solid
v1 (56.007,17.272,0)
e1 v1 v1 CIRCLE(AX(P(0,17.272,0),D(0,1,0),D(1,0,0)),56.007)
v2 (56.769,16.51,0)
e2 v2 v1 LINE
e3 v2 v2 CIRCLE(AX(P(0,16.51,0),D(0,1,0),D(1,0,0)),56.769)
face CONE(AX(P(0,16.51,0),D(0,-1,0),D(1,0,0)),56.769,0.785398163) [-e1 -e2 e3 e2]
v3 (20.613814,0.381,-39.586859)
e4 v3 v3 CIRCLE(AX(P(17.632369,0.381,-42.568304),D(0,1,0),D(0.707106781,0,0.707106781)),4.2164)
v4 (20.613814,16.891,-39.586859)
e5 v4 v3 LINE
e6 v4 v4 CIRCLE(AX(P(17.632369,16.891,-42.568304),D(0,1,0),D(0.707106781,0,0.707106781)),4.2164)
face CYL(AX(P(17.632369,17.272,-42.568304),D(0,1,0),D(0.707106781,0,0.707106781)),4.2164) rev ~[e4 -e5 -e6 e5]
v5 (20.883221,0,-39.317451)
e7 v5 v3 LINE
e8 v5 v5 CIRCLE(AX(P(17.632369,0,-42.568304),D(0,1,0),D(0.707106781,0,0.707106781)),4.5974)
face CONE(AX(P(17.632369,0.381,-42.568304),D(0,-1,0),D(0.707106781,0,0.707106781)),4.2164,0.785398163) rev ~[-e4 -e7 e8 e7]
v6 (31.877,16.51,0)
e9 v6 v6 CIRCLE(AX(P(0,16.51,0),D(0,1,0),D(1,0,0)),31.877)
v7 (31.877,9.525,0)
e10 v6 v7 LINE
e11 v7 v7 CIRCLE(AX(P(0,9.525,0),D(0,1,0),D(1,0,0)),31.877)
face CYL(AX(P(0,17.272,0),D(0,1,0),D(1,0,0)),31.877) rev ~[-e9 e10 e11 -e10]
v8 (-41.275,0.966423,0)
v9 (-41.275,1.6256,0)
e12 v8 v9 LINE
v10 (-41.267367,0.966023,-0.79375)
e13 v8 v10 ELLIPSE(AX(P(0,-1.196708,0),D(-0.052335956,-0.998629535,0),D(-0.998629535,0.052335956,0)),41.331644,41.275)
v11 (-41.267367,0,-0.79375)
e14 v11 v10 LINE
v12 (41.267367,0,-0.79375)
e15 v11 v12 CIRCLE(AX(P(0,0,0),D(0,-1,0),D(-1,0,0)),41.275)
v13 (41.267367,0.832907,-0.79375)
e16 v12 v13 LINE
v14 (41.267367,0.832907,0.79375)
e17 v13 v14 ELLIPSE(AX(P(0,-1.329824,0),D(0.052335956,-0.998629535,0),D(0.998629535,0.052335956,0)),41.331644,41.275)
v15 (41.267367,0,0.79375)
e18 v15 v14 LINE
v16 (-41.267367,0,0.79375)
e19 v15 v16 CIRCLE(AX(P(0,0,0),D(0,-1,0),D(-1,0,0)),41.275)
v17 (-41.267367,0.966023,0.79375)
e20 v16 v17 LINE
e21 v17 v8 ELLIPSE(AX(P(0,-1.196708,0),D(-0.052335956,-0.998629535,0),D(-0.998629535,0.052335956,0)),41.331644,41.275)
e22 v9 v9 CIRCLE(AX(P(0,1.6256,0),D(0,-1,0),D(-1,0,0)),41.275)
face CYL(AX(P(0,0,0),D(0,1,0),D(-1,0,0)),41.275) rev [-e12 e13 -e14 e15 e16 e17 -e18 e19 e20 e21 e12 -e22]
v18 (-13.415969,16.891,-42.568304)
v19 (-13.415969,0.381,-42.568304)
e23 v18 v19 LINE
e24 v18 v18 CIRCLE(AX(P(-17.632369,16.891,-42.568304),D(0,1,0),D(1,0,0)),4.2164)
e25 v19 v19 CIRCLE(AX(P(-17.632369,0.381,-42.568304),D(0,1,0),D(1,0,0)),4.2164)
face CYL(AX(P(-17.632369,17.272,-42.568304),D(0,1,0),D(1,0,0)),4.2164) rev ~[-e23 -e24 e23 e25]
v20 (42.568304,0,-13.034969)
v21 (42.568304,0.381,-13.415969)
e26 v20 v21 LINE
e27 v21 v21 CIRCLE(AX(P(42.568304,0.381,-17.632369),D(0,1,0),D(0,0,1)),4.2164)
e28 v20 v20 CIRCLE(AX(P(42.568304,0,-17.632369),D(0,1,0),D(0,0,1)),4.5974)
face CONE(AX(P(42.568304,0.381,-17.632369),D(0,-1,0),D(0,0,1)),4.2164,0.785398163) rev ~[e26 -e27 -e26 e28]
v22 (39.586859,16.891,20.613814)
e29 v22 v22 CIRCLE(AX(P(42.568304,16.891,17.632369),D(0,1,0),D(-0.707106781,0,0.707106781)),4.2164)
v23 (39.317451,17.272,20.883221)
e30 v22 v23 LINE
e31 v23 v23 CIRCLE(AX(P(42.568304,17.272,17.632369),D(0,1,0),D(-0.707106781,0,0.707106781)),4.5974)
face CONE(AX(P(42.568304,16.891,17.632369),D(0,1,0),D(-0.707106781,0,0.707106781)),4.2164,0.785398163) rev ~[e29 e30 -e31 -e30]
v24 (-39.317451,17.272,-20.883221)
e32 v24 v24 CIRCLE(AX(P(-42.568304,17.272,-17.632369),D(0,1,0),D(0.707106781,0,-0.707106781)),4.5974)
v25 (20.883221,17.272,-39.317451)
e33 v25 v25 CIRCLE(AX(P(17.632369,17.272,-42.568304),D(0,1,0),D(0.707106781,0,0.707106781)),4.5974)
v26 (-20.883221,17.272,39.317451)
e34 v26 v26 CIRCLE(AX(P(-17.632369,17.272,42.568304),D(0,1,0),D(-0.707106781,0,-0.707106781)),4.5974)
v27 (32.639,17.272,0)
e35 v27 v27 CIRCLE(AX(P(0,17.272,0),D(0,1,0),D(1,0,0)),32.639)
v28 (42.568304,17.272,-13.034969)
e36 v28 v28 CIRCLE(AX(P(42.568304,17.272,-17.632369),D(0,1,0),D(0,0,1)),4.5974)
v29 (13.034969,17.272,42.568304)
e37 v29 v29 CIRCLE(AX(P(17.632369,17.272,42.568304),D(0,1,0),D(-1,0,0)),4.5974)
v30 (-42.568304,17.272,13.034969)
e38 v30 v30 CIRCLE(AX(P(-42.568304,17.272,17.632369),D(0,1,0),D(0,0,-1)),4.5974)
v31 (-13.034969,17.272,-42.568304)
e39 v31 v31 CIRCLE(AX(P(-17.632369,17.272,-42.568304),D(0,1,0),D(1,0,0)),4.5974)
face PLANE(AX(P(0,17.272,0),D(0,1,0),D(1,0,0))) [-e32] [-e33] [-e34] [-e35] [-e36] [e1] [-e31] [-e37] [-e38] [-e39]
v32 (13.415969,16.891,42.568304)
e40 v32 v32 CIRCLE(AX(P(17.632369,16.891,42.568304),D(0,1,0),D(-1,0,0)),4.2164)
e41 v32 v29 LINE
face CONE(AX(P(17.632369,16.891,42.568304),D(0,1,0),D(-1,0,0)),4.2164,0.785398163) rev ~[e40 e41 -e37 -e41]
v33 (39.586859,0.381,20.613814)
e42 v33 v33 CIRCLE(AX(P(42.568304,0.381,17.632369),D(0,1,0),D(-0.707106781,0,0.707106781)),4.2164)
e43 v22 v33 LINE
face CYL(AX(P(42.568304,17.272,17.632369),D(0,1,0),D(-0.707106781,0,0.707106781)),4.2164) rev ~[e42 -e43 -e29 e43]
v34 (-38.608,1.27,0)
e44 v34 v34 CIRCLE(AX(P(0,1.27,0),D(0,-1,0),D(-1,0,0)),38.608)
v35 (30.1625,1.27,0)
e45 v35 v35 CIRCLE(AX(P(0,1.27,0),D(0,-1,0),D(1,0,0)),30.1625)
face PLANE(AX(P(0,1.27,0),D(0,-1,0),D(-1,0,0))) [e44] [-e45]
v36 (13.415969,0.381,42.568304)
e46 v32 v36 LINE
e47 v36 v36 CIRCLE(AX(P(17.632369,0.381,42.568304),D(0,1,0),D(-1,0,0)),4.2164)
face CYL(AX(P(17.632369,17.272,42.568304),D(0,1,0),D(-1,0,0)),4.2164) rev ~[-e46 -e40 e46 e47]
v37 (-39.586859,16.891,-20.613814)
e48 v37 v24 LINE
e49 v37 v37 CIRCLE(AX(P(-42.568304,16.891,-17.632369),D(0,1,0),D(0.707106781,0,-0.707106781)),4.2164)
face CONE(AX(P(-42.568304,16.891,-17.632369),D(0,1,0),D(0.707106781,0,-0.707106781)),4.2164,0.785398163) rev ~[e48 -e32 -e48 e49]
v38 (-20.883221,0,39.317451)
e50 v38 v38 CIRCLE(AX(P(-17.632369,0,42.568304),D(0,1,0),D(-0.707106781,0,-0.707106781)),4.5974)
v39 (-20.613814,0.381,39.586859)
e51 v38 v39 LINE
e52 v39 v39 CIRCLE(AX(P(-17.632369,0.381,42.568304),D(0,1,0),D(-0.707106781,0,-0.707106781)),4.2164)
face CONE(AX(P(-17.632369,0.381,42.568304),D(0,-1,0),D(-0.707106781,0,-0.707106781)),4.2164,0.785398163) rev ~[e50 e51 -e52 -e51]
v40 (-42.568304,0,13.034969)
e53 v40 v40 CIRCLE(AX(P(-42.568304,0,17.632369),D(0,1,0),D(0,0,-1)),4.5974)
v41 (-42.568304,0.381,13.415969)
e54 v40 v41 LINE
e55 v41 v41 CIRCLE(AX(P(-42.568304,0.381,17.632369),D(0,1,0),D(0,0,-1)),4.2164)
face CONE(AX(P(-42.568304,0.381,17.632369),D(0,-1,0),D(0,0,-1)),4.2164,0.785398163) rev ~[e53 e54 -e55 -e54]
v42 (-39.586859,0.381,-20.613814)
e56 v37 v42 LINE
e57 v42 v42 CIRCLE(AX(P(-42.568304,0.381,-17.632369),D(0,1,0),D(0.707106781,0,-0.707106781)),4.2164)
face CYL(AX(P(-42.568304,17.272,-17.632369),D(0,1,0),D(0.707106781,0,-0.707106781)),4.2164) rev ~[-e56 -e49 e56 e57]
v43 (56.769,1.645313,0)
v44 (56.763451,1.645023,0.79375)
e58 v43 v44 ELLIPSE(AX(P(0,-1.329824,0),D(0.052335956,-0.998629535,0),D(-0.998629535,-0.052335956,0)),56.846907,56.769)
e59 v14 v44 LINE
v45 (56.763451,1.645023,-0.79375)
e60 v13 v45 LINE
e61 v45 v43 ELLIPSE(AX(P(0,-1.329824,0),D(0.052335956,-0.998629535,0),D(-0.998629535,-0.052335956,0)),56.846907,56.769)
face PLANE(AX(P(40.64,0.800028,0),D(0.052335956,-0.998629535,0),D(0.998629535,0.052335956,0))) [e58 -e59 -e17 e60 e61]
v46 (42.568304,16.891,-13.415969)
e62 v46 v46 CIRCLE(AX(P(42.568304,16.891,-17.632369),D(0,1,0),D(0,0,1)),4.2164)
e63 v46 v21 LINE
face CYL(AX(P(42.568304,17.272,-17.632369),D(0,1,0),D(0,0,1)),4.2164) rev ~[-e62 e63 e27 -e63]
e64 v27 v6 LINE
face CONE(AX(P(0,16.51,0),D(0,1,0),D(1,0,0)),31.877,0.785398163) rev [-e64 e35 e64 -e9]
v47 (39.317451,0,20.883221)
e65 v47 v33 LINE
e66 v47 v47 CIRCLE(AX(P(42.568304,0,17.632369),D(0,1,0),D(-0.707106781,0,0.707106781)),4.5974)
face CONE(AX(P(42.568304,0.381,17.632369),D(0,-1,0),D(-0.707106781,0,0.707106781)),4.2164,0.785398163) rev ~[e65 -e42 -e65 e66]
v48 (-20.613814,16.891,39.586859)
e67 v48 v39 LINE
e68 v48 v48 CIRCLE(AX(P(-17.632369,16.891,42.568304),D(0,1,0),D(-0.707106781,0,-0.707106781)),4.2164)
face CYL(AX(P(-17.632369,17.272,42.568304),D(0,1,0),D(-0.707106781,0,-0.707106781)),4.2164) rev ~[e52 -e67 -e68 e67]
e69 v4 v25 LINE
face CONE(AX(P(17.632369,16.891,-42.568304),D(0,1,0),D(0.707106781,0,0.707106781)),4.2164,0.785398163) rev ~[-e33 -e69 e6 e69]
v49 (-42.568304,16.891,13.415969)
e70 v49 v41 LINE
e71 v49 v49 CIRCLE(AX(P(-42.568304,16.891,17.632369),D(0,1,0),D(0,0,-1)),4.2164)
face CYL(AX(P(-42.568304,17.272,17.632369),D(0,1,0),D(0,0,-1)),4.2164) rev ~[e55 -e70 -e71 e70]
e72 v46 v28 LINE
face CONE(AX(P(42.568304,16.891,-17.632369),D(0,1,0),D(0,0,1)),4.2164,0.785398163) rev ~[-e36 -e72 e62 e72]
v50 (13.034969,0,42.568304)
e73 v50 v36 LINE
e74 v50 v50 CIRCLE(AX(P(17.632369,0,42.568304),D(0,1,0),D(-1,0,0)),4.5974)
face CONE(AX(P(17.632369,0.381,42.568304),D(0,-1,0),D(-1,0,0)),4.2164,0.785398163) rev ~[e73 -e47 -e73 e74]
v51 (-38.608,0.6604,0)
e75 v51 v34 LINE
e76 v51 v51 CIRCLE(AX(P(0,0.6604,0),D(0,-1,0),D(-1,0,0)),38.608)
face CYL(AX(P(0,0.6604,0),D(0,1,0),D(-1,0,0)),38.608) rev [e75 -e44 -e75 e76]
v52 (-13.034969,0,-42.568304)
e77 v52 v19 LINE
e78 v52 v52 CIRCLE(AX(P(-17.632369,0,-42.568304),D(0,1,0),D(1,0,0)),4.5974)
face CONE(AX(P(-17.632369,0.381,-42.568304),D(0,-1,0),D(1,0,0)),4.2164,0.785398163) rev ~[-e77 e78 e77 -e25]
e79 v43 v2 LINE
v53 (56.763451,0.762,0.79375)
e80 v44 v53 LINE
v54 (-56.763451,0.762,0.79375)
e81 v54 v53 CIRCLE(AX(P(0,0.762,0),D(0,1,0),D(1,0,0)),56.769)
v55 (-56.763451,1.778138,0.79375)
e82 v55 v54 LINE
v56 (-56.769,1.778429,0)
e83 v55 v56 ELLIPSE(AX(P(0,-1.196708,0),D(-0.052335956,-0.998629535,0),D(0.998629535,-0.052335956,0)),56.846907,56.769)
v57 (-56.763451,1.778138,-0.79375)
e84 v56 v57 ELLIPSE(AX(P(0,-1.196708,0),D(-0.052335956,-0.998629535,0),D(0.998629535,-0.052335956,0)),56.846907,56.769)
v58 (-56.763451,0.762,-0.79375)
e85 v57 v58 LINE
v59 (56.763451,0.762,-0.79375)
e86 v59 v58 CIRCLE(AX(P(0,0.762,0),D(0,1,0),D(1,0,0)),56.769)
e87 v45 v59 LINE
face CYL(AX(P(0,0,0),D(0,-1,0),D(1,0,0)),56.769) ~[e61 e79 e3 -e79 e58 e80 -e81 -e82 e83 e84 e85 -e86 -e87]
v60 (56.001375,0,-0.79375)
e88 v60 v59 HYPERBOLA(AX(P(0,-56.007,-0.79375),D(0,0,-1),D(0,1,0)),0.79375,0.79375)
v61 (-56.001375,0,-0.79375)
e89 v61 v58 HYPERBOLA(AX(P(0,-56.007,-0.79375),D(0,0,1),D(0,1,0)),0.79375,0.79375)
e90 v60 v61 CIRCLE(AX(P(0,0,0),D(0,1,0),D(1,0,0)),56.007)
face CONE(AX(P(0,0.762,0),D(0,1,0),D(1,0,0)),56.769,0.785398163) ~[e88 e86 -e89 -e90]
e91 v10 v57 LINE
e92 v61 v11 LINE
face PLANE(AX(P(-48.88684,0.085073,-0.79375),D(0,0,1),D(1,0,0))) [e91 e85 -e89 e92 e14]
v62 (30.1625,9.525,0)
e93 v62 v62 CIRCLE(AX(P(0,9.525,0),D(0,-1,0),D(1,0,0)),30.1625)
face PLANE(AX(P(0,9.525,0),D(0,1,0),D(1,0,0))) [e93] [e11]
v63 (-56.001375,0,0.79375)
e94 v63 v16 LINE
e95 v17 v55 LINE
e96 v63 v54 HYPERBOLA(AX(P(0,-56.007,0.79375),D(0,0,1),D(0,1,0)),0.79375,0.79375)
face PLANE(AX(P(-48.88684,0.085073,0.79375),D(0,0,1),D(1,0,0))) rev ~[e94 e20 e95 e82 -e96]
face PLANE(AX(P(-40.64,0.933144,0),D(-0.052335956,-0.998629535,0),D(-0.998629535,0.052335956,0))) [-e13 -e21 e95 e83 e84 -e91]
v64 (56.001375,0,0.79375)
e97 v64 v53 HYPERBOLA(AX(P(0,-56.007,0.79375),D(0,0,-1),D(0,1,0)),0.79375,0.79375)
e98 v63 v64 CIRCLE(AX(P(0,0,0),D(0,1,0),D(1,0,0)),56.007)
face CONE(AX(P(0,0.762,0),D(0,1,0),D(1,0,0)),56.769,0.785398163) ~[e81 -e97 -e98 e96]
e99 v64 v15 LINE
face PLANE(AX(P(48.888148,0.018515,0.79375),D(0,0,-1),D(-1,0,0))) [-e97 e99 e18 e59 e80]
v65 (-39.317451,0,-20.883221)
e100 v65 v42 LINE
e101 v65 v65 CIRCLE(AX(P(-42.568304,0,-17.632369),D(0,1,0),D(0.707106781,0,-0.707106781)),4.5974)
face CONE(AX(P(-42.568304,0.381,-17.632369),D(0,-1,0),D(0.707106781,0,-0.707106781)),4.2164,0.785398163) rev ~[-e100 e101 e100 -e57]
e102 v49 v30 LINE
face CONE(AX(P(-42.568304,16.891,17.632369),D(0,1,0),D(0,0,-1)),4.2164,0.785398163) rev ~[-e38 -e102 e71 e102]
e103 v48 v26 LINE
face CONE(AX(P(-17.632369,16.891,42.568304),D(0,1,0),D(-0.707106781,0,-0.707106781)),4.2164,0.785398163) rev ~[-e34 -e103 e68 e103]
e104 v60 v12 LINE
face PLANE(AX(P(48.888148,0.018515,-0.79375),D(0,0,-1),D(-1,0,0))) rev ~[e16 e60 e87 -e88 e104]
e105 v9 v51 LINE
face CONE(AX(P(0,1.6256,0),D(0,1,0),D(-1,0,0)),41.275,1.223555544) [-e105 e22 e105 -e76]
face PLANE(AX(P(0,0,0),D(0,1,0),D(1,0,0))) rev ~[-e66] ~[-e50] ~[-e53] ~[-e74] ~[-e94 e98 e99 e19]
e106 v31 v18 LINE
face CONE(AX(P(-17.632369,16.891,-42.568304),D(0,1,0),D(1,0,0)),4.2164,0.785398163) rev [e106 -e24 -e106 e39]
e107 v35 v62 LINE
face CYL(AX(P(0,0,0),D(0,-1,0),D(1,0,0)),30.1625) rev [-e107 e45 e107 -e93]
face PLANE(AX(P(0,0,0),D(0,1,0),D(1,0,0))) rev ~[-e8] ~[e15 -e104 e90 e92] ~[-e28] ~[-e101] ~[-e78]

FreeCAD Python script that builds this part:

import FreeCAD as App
import Part
import Sketcher
Q = App.Units.Quantity


def edges_at(feature, points):
    """Names of the edges that pass closest to the given points."""
    edges = feature.Shape.Edges
    near = lambda p: min(range(len(edges)), key=lambda i: edges[i].distToShape(Part.Vertex(*p))[0])
    return sorted({f"Edge{near(p) + 1}" for p in points})


def add_polygon(sketch, points):
    """Adds a closed chain of lines whose ends are joined by coincident constraints."""
    first, n = sketch.GeometryCount, len(points)
    for a, b in zip(points, points[1:] + points[:1]):
        sketch.addGeometry(Part.LineSegment(App.Vector(*a, 0), App.Vector(*b, 0)), False)
    for i in range(n):
        sketch.addConstraint(Sketcher.Constraint("Coincident", first + i, 2, first + (i + 1) % n, 1))

doc = App.newDocument("Part")
params = doc.addObject("Spreadsheet::Sheet", "Params")
for row, (alias, value) in enumerate([
    ("sketch1_diameter", "4.47 in"),
    ("sketch1_diameter2", "2.375 in"),
    ("pad1_length", "0.68 in"),
    ("sketch2_diameter", "2.51 in"),
    ("pocket1_length", "0.305 in"),
    ("chamfer_size", "0.03 in"),
    ("sketch3_width", "1.52 in"),
    ("sketch3_height", "0.05 in"),
    ("sketch3_width2", "1.625 in"),
    ("sketch3_height2", "0.064 in"),
    ("sketch3_height3", "0.024 in"),
    ("groove_angle", "360 deg"),
    ("sketch4_diameter", "0.332 in"),
    ("chamfer2_size", "0.015 in"),
    ("chamfer3_size", "0.015 in"),
    ("sketch5_width", "0.635 in"),
    ("pocket3_length", "0.0625 in"),
], start=1):
    params.set(f"A{row}", alias)
    params.set(f"B{row}", "=" + value)
    params.setAlias(f"B{row}", alias)

body = doc.addObject("PartDesign::Body", "Body")

# Sketch on XZ plane
sketch1 = body.newObject("Sketcher::SketchObject", "Sketch")
sketch1.AttachmentSupport = (doc.getObject("XZ_Plane"), [""])
sketch1.MapMode = "FlatFace"
sketch1.addGeometry(Part.Circle(App.Vector(0, 0, 0), App.Vector(0, 0, 1), 57), False)
sketch1.addGeometry(Part.Circle(App.Vector(0, 0, 0), App.Vector(0, 0, 1), 30), False)
sketch1.addConstraint(Sketcher.Constraint("Coincident", 0, 3, -1, 1))
sketch1.addConstraint(Sketcher.Constraint("Coincident", 1, 3, -1, 1))
sketch1.addConstraint(Sketcher.Constraint("Diameter", 0, Q("4.47 in")))
sketch1.addConstraint(Sketcher.Constraint("Diameter", 1, Q("2.375 in")))
sketch1.setExpression("Constraints[2]", "Params.sketch1_diameter")
sketch1.setExpression("Constraints[3]", "Params.sketch1_diameter2")
pad1 = body.newObject("PartDesign::Pad", "Pad")
pad1.Profile = sketch1
pad1.setExpression("Length", "Params.pad1_length")
pad1.Reversed = True

# Sketch on XZ plane
sketch2 = body.newObject("Sketcher::SketchObject", "Sketch001")
sketch2.AttachmentSupport = (doc.getObject("XZ_Plane"), [""])
sketch2.MapMode = "FlatFace"
sketch2.AttachmentOffset = App.Placement(App.Vector(0, 0, -0.68 * 25.4), App.Rotation())
sketch2.addGeometry(Part.Circle(App.Vector(0, 0, 0), App.Vector(0, 0, 1), 32), False)
sketch2.addConstraint(Sketcher.Constraint("Coincident", 0, 3, -1, 1))
sketch2.addConstraint(Sketcher.Constraint("Diameter", 0, Q("2.51 in")))
sketch2.setExpression("Constraints[1]", "Params.sketch2_diameter")
pocket1 = body.newObject("PartDesign::Pocket", "Pocket")
pocket1.Profile = sketch2
pocket1.setExpression("Length", "Params.pocket1_length")
pocket1.Reversed = True
doc.recompute()

chamfer = body.newObject("PartDesign::Chamfer", "Chamfer")
chamfer.Base = (pocket1, edges_at(pocket1, [(-31.877, 17.272, 0), (-56.769, 0, 0), (-56.769, 17.272, 0)]))
chamfer.setExpression("Size", "Params.chamfer_size")

# Sketch on XY plane
sketch3 = body.newObject("Sketcher::SketchObject", "Sketch002")
sketch3.AttachmentSupport = (doc.getObject("XY_Plane"), [""])
sketch3.MapMode = "FlatFace"
add_polygon(sketch3, [(-41.3, 1.6), (-41.3, 0), (0, 0), (0, 1.3), (-38.6, 1.3), (-38.6, 0.7)])  # lines 0-5
sketch3.addConstraint(Sketcher.Constraint("Vertical", 0))
sketch3.addConstraint(Sketcher.Constraint("Horizontal", 1))
sketch3.addConstraint(Sketcher.Constraint("Vertical", 2))
sketch3.addConstraint(Sketcher.Constraint("Horizontal", 3))
sketch3.addConstraint(Sketcher.Constraint("Vertical", 4))
sketch3.addConstraint(Sketcher.Constraint("Coincident", 1, 2, -1, 1))
sketch3.addConstraint(Sketcher.Constraint("DistanceX", 3, 2, 3, 1, Q("1.52 in")))
sketch3.addConstraint(Sketcher.Constraint("DistanceY", 2, 1, 2, 2, Q("0.05 in")))
sketch3.addConstraint(Sketcher.Constraint("DistanceX", 1, 1, 1, 2, Q("1.625 in")))
sketch3.addConstraint(Sketcher.Constraint("DistanceY", 0, 2, 0, 1, Q("0.064 in")))
sketch3.addConstraint(Sketcher.Constraint("DistanceY", 4, 2, 4, 1, Q("0.024 in")))
sketch3.setExpression("Constraints[12]", "Params.sketch3_width")
sketch3.setExpression("Constraints[13]", "Params.sketch3_height")
sketch3.setExpression("Constraints[14]", "Params.sketch3_width2")
sketch3.setExpression("Constraints[15]", "Params.sketch3_height2")
sketch3.setExpression("Constraints[16]", "Params.sketch3_height3")
groove = body.newObject("PartDesign::Groove", "Groove")
groove.Profile = sketch3
groove.ReferenceAxis = (sketch3, ["V_Axis"])
groove.setExpression("Angle", "Params.groove_angle")

# Sketch on XZ plane
sketch4 = body.newObject("Sketcher::SketchObject", "Sketch003")
sketch4.AttachmentSupport = (doc.getObject("XZ_Plane"), [""])
sketch4.MapMode = "FlatFace"
sketch4.AttachmentOffset = App.Placement(App.Vector(0, 0, -0.68 * 25.4), App.Rotation())
sketch4.addGeometry(Part.Circle(App.Vector(-17.6, -42.6, 0), App.Vector(0, 0, 1), 4.2), False)
sketch4.addConstraint(Sketcher.Constraint("Diameter", 0, Q("0.332 in")))
sketch4.addConstraint(Sketcher.Constraint("DistanceX", 0, 3, -1, 1, 17.632369))
sketch4.addConstraint(Sketcher.Constraint("DistanceY", 0, 3, -1, 1, 42.568304))
sketch4.setExpression("Constraints[0]", "Params.sketch4_diameter")
pocket2 = body.newObject("PartDesign::Pocket", "Pocket001")
pocket2.Profile = sketch4
pocket2.Type = "ThroughAll"
pocket2.Reversed = True
doc.recompute()

chamfer2 = body.newObject("PartDesign::Chamfer", "Chamfer001")
chamfer2.Base = (pocket2, edges_at(pocket2, [(-21.849, 0, -42.568), (-21.849, 17.272, -42.568)]))
chamfer2.setExpression("Size", "Params.chamfer2_size")
doc.recompute()

polarpattern = body.newObject("PartDesign::PolarPattern", "PolarPattern")
polarpattern.Originals = [pocket2]
polarpattern.Axis = (doc.getObject("Y_Axis"), [""])
polarpattern.Angle = 360
polarpattern.Occurrences = 8
body.Tip = polarpattern
doc.recompute()

chamfer3 = body.newObject("PartDesign::Chamfer", "Chamfer002")
chamfer3.Base = (polarpattern, edges_at(polarpattern, [
    (-45.55, 0, -14.651),
    (-45.55, 17.272, -14.651),
    (-42.568, 0, 21.849),
    (-42.568, 17.272, 21.849),
    (-14.651, 0, 45.55),
    (-14.651, 17.272, 45.55),
    (21.849, 0, 42.568),
    (21.849, 17.272, 42.568),
    (45.55, 0, 14.651),
    (45.55, 17.272, 14.651),
    (42.568, 0, -21.849),
    (42.568, 17.272, -21.849),
    (14.651, 0, -45.55),
    (14.651, 17.272, -45.55),
]))
chamfer3.setExpression("Size", "Params.chamfer3_size")

# Sketch on XY plane
sketch5 = body.newObject("Sketcher::SketchObject", "Sketch004")
sketch5.AttachmentSupport = (doc.getObject("XY_Plane"), [""])
sketch5.MapMode = "FlatFace"
add_polygon(sketch5, [(-40.6, 0.9), (-56.8, 1.8), (-56.8, -1.2), (-40.6, -1.2)])  # lines 0-3
add_polygon(sketch5, [(56.8, -1.2), (56.8, 1.6), (40.6, 0.8), (40.6, -1.2)])  # lines 4-7
sketch5.addConstraint(Sketcher.Constraint("Vertical", 1))
sketch5.addConstraint(Sketcher.Constraint("Horizontal", 2))
sketch5.addConstraint(Sketcher.Constraint("Vertical", 3))
sketch5.addConstraint(Sketcher.Constraint("Vertical", 4))
sketch5.addConstraint(Sketcher.Constraint("Vertical", 6))
sketch5.addConstraint(Sketcher.Constraint("Horizontal", 7))
sketch5.addConstraint(Sketcher.Constraint("Symmetric", 2, 2, 6, 2, -2))
sketch5.addConstraint(Sketcher.Constraint("Equal", 2, 7))
sketch5.addConstraint(Sketcher.Constraint("Equal", 0, 5))
sketch5.addConstraint(Sketcher.Constraint("Angle", 0, Q("177 deg")))
sketch5.addConstraint(Sketcher.Constraint("DistanceX", 2, 2, -1, 1, Q("1.6 in")))
sketch5.addConstraint(Sketcher.Constraint("DistanceX", 2, 1, 2, 2, Q("0.635 in")))
sketch5.addConstraint(Sketcher.Constraint("DistanceY", 4, 1, 4, 2, 2.842021))
sketch5.addConstraint(Sketcher.Constraint("DistanceY", 5, 2, 0, 2, 0.978401))
sketch5.addConstraint(Sketcher.Constraint("DistanceY", -1, 1, 0, 2, 1.778429))
sketch5.setExpression("Constraints[19]", "Params.sketch5_width")
pocket3 = body.newObject("PartDesign::Pocket", "Pocket002")
pocket3.Profile = sketch5
pocket3.setExpression("Length", "Params.pocket3_length")
pocket3.Midplane = True

doc.recompute()
